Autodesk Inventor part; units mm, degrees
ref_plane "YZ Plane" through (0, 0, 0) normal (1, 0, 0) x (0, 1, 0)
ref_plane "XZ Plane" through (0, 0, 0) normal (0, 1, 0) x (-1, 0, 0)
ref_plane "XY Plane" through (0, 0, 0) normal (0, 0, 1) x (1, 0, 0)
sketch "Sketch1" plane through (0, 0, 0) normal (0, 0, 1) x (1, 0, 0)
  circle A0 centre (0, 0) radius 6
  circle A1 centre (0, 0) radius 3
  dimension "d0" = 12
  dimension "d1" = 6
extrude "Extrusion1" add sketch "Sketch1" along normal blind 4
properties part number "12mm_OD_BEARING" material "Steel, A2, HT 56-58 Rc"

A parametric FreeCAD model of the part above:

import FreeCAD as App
import Part
import Sketcher

V = App.Vector

doc = App.newDocument("Part")
body = doc.addObject("PartDesign::Body", "Body")

sketch1 = body.newObject("Sketcher::SketchObject", "Sketch")
sketch1.AttachmentSupport = (doc.getObject("XY_Plane"), [""])
sketch1.MapMode = "FlatFace"
sketch1.addGeometry(Part.Circle(V(0, 0, 0), V(0, 0, 1), 6), False)
sketch1.addGeometry(Part.Circle(V(0, 0, 0), V(0, 0, 1), 3), False)
sketch1.addConstraint(Sketcher.Constraint("Coincident", 0, 3, -1, 1))
sketch1.addConstraint(Sketcher.Constraint("Coincident", 1, 3, -1, 1))
sketch1.addConstraint(Sketcher.Constraint("Diameter", 0, 12.0))
sketch1.addConstraint(Sketcher.Constraint("Diameter", 1, 6.0))
pad1 = body.newObject("PartDesign::Pad", "Pad")
pad1.Profile = sketch1
pad1.Length = 4

doc.recompute()
